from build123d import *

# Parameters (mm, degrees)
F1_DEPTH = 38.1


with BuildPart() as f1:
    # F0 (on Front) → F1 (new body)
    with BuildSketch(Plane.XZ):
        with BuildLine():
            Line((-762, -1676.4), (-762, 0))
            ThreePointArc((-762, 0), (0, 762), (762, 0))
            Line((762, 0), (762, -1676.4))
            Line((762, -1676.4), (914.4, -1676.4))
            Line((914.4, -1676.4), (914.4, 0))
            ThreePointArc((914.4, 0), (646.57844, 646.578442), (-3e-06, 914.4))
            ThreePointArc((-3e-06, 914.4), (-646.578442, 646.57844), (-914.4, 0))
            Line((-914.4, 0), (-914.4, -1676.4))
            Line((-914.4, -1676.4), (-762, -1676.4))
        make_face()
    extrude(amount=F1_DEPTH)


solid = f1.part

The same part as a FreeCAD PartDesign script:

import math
import FreeCAD as App
import Part
import Sketcher
from FreeCAD import Vector
Q = App.Units.Quantity

doc = App.newDocument("Part")
body = doc.addObject("PartDesign::Body", "Body")

# Sketch on XZ plane
sketch1 = body.newObject("Sketcher::SketchObject", "Sketch")
sketch1.AttachmentSupport = (doc.getObject("XZ_Plane"), [""])
sketch1.MapMode = "FlatFace"
sketch1.addGeometry([
    Part.LineSegment(Vector(-762, -1676, 0), Vector(-762, 0, 0)),  # 0
    Part.ArcOfCircle(Part.Circle(Vector(0, 0, 0), Vector(0, 0, 1), 762), math.radians(0), math.radians(180)),  # 1
    Part.LineSegment(Vector(762, 0, 0), Vector(762, -1676, 0)),  # 2
    Part.LineSegment(Vector(762, -1676, 0), Vector(914, -1676, 0)),  # 3
    Part.LineSegment(Vector(914, -1676, 0), Vector(914, 0, 0)),  # 4
    Part.ArcOfCircle(Part.Circle(Vector(0, 0, 0), Vector(0, 0, 1), 914), math.radians(0), math.radians(90)),  # 5
    Part.ArcOfCircle(Part.Circle(Vector(0, 0, 0), Vector(0, 0, 1), 914), math.radians(90), math.radians(180)),  # 6
    Part.LineSegment(Vector(-914, 0, 0), Vector(-914, -1676, 0)),  # 7
    Part.LineSegment(Vector(-914, -1676, 0), Vector(-762, -1676, 0)),  # 8
], False)
sketch1.addConstraint([
    Sketcher.Constraint("Tangent", 0, 2, 1, 2),
    Sketcher.Constraint("Coincident", 1, 1, 2, 1),
    Sketcher.Constraint("Coincident", 2, 2, 3, 1),
    Sketcher.Constraint("Coincident", 3, 2, 4, 1),
    Sketcher.Constraint("Coincident", 4, 2, 5, 1),
    Sketcher.Constraint("Coincident", 5, 2, 6, 1),
    Sketcher.Constraint("Coincident", 6, 2, 7, 1),
    Sketcher.Constraint("Coincident", 7, 2, 8, 1),
    Sketcher.Constraint("Coincident", 8, 2, 0, 1),
    Sketcher.Constraint("Vertical", 0),
    Sketcher.Constraint("Vertical", 2),
    Sketcher.Constraint("Horizontal", 3),
    Sketcher.Constraint("Vertical", 4),
    Sketcher.Constraint("Vertical", 7),
    Sketcher.Constraint("Horizontal", 8),
    Sketcher.Constraint("Coincident", 1, 3, -1, 1),
    Sketcher.Constraint("Coincident", 5, 3, -1, 1),
    Sketcher.Constraint("Coincident", 6, 3, -1, 1),
    Sketcher.Constraint("PointOnObject", 4, 2, -1),
    Sketcher.Constraint("Horizontal", 3, 2, 7, 2),
    Sketcher.Constraint("Equal", 0, 2),
    Sketcher.Constraint("Equal", 4, 7),
    Sketcher.Constraint("Radius", 1, Q("30 in")),
    Sketcher.Constraint("Radius", 5, Q("36 in")),
    Sketcher.Constraint("DistanceY", 0, 1, 0, 2, Q("66 in")),
    Sketcher.Constraint("DistanceX", 0, 2, 5, 2, Q("29.9999999 in")),
])
pad1 = body.newObject("PartDesign::Pad", "Pad")
pad1.Profile = sketch1
pad1.Length = Q("1.5 in")

doc.recompute()
